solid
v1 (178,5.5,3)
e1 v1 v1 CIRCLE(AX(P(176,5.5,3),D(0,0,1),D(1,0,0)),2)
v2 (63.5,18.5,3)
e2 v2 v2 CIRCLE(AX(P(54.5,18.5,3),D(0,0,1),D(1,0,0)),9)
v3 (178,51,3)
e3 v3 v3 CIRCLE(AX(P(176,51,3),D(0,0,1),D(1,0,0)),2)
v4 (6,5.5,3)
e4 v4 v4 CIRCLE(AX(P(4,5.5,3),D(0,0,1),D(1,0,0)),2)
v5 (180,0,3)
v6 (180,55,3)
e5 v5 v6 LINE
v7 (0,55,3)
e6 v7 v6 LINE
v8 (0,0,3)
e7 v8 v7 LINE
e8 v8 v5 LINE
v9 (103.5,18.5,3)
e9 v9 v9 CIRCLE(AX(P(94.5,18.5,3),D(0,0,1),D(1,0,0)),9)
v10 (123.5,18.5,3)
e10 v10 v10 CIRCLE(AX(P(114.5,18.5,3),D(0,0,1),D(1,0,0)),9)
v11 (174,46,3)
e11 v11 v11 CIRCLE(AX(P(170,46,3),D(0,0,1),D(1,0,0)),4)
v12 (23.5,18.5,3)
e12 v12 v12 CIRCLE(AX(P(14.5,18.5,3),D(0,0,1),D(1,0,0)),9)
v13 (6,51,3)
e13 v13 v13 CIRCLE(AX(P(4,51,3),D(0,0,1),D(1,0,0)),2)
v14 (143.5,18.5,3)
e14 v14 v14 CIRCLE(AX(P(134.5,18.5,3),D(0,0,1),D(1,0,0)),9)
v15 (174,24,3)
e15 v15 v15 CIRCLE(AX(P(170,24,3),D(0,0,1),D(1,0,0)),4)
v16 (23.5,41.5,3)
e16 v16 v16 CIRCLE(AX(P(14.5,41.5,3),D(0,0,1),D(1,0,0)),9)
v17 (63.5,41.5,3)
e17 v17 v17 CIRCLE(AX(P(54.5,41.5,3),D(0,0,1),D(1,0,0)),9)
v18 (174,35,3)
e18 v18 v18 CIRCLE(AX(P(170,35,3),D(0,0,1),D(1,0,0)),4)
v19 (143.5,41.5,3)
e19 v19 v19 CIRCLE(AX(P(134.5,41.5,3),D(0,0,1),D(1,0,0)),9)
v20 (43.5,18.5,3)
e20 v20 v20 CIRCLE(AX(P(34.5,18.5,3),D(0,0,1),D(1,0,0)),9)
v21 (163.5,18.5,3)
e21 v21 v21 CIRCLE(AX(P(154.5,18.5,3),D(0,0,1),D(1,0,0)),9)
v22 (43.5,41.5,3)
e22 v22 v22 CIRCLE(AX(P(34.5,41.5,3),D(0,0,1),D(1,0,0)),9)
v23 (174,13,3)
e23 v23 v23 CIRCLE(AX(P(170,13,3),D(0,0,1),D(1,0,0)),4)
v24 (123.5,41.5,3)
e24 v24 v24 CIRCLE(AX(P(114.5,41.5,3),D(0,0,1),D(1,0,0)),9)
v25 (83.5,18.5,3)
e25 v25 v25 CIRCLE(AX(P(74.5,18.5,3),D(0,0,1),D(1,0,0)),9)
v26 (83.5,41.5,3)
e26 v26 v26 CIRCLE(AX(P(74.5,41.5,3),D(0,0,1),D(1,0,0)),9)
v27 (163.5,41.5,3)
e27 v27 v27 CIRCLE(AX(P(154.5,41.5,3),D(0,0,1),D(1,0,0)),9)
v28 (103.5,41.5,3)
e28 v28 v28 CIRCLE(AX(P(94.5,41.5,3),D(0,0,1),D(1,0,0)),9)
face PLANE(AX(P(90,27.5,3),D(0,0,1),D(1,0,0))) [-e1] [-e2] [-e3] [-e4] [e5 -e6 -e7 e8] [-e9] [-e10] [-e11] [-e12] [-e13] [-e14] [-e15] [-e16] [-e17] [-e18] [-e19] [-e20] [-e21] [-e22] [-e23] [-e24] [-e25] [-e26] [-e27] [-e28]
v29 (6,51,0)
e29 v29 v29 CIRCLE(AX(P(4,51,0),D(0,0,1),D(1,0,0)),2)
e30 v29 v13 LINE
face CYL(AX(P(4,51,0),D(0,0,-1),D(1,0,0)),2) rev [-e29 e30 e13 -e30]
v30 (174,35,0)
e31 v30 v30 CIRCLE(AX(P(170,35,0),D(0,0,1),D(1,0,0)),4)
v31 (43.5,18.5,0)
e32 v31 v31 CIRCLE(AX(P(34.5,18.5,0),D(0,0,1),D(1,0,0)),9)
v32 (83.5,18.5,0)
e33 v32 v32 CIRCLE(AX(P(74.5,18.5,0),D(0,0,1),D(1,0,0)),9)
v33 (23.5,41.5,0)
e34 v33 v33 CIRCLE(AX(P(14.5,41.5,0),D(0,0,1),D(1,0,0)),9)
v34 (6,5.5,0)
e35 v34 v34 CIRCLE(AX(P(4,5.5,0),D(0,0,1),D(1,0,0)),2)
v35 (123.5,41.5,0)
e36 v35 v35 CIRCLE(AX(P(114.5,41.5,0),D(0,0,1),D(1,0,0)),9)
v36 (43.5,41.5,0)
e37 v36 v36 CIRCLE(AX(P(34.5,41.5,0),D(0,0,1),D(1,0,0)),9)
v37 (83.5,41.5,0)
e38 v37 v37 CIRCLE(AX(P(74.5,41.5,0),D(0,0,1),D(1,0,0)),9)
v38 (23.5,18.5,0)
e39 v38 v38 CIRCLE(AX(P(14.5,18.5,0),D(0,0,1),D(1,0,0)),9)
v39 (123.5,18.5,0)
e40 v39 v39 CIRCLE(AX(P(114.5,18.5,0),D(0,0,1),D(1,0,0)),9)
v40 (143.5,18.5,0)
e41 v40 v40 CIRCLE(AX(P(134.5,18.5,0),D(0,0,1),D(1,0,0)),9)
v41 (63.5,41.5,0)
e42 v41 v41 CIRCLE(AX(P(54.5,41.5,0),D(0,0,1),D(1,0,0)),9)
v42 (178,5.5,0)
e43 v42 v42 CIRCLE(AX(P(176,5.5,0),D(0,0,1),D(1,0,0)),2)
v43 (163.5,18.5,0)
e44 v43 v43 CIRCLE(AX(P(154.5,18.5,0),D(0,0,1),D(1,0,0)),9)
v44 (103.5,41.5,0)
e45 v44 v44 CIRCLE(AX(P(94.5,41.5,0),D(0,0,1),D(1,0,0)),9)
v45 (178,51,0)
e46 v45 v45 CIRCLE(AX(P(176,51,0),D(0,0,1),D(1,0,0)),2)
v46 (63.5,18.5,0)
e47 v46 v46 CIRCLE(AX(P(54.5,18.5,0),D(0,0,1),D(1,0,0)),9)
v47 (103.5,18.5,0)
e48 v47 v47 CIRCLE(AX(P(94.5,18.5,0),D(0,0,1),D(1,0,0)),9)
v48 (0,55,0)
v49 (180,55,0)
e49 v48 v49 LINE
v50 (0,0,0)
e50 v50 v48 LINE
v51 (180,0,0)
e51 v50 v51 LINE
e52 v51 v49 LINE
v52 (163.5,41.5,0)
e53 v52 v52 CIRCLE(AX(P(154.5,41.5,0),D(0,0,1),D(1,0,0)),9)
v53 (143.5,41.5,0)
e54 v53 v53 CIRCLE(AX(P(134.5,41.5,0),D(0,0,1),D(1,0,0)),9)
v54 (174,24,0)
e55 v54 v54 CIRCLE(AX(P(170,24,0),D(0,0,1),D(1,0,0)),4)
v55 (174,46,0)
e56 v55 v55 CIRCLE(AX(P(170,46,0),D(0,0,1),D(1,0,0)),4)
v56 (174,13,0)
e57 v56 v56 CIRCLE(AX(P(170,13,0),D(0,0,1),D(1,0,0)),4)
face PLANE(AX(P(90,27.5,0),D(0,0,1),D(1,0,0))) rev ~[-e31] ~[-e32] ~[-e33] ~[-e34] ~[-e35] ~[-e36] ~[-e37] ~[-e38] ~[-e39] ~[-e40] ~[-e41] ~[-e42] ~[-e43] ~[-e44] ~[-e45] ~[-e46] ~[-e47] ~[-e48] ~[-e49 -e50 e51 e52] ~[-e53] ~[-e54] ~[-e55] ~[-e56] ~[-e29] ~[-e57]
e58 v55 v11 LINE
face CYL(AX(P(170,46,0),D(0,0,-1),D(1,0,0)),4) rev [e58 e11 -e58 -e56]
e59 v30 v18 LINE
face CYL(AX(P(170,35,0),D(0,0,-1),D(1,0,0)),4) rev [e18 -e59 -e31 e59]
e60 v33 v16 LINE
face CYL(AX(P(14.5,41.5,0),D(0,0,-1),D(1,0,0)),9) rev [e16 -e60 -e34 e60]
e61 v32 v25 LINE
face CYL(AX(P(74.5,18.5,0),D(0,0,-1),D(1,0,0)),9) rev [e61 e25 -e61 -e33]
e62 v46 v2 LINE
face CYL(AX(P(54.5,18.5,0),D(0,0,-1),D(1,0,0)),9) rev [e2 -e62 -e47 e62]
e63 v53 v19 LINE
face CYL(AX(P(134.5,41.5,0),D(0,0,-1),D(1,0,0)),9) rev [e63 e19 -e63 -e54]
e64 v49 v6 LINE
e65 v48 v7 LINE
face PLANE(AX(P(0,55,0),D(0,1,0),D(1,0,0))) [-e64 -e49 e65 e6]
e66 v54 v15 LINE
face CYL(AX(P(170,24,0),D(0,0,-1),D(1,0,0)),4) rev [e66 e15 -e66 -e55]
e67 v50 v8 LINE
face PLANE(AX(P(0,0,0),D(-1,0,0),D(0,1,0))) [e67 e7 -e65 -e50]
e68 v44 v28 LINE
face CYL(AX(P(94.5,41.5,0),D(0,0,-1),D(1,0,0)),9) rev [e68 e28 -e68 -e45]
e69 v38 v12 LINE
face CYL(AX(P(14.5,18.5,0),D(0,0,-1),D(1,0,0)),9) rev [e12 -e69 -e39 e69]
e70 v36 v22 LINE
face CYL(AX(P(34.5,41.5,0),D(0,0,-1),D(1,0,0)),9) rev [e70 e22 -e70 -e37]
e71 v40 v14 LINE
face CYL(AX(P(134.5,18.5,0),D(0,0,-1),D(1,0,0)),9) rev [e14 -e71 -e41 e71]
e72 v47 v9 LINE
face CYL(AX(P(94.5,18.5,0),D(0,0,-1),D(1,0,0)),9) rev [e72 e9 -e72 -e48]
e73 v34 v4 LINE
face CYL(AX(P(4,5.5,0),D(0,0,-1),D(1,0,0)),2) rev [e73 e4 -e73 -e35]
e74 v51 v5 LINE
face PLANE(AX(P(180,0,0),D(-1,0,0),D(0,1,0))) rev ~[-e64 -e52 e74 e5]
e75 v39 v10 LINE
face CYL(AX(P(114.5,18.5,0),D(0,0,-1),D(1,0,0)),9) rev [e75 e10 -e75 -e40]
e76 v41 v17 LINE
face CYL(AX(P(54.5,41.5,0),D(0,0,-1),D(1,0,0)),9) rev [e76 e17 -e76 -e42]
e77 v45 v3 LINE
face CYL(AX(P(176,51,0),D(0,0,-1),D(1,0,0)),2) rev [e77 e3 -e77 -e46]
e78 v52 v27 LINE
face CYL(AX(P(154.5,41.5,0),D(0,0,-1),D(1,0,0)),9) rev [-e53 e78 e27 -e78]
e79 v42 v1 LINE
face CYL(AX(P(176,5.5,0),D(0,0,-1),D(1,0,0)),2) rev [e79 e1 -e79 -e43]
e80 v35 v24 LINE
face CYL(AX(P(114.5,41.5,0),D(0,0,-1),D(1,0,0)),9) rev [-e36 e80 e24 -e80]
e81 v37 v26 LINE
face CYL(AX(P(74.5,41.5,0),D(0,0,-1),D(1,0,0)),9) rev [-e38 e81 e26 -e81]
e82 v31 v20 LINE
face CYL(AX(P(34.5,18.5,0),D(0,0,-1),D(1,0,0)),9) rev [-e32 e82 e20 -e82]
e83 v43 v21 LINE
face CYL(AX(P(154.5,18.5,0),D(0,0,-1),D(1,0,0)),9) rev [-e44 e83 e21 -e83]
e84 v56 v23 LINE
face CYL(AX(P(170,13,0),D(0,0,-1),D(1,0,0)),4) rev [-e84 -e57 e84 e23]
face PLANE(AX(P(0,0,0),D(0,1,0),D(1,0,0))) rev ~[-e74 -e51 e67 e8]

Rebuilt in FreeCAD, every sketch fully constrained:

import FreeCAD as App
import Part
import Sketcher
Q = App.Units.Quantity


def add_polygon(sketch, points):
    """Adds a closed chain of lines whose ends are joined by coincident constraints."""
    first, n = sketch.GeometryCount, len(points)
    for a, b in zip(points, points[1:] + points[:1]):
        sketch.addGeometry(Part.LineSegment(App.Vector(*a, 0), App.Vector(*b, 0)), False)
    for i in range(n):
        sketch.addConstraint(Sketcher.Constraint("Coincident", first + i, 2, first + (i + 1) % n, 1))

doc = App.newDocument("Part")
body = doc.addObject("PartDesign::Body", "Body")

sketch1 = doc.addObject("Sketcher::SketchObject", "Sketch")
body.addObject(sketch1)
sketch1.AttachmentSupport = (doc.XY_Plane, [""])
sketch1.MapMode = "FlatFace"
sketch1.addGeometry(Part.Circle(App.Vector(176, 51, 0), App.Vector(0, 0, 1), 2), False)
sketch1.addConstraint(Sketcher.Constraint("Diameter", 0, Q("4 mm")))
sketch1.addConstraint(Sketcher.Constraint("DistanceX", -1, 1, 0, 3, Q("176 mm")))
sketch1.addConstraint(Sketcher.Constraint("DistanceY", -1, 1, 0, 3, Q("51 mm")))
pad1 = doc.addObject("PartDesign::Pad", "Pad")
body.addObject(pad1)
pad1.Profile = sketch1
pad1.Length = 3
body2 = doc.addObject("PartDesign::Body", "Body001")

sketch2 = doc.addObject("Sketcher::SketchObject", "Sketch001")
body2.addObject(sketch2)
sketch2.AttachmentSupport = (doc.getObject("XY_Plane001"), [""])
sketch2.MapMode = "FlatFace"
sketch2.addGeometry(Part.Circle(App.Vector(4, 51, 0), App.Vector(0, 0, 1), 2), False)
sketch2.addConstraint(Sketcher.Constraint("Diameter", 0, Q("4 mm")))
sketch2.addConstraint(Sketcher.Constraint("DistanceX", -1, 1, 0, 3, Q("4 mm")))
sketch2.addConstraint(Sketcher.Constraint("DistanceY", -1, 1, 0, 3, Q("51 mm")))
pad2 = doc.addObject("PartDesign::Pad", "Pad001")
body2.addObject(pad2)
pad2.Profile = sketch2
pad2.Length = 3
body3 = doc.addObject("PartDesign::Body", "Body002")

sketch3 = doc.addObject("Sketcher::SketchObject", "Sketch002")
body3.addObject(sketch3)
sketch3.AttachmentSupport = (doc.getObject("XY_Plane002"), [""])
sketch3.MapMode = "FlatFace"
sketch3.addGeometry(Part.Circle(App.Vector(176, 5.5, 0), App.Vector(0, 0, 1), 2), False)
sketch3.addConstraint(Sketcher.Constraint("Diameter", 0, Q("4 mm")))
sketch3.addConstraint(Sketcher.Constraint("DistanceX", -1, 1, 0, 3, Q("176 mm")))
sketch3.addConstraint(Sketcher.Constraint("DistanceY", -1, 1, 0, 3, Q("5.5 mm")))
pad3 = doc.addObject("PartDesign::Pad", "Pad002")
body3.addObject(pad3)
pad3.Profile = sketch3
pad3.Length = 3
body4 = doc.addObject("PartDesign::Body", "Body003")

sketch4 = doc.addObject("Sketcher::SketchObject", "Sketch003")
body4.addObject(sketch4)
sketch4.AttachmentSupport = (doc.getObject("XY_Plane003"), [""])
sketch4.MapMode = "FlatFace"
sketch4.addGeometry(Part.Circle(App.Vector(4, 5.5, 0), App.Vector(0, 0, 1), 2), False)
sketch4.addConstraint(Sketcher.Constraint("Diameter", 0, Q("4 mm")))
sketch4.addConstraint(Sketcher.Constraint("DistanceX", -1, 1, 0, 3, Q("4 mm")))
sketch4.addConstraint(Sketcher.Constraint("DistanceY", -1, 1, 0, 3, Q("5.5 mm")))
pad4 = doc.addObject("PartDesign::Pad", "Pad003")
body4.addObject(pad4)
pad4.Profile = sketch4
pad4.Length = 3
body5 = doc.addObject("PartDesign::Body", "Body004")

sketch5 = doc.addObject("Sketcher::SketchObject", "Sketch004")
body5.addObject(sketch5)
sketch5.AttachmentSupport = (doc.getObject("XY_Plane004"), [""])
sketch5.MapMode = "FlatFace"
sketch5.addGeometry(Part.Circle(App.Vector(170, 13, 0), App.Vector(0, 0, 1), 4), False)
sketch5.addConstraint(Sketcher.Constraint("Diameter", 0, Q("8 mm")))
sketch5.addConstraint(Sketcher.Constraint("DistanceX", -1, 1, 0, 3, Q("170 mm")))
sketch5.addConstraint(Sketcher.Constraint("DistanceY", -1, 1, 0, 3, Q("13 mm")))
pad5 = doc.addObject("PartDesign::Pad", "Pad004")
body5.addObject(pad5)
pad5.Profile = sketch5
pad5.Length = 3
body6 = doc.addObject("PartDesign::Body", "Body005")

sketch6 = doc.addObject("Sketcher::SketchObject", "Sketch005")
body6.addObject(sketch6)
sketch6.AttachmentSupport = (doc.getObject("XY_Plane005"), [""])
sketch6.MapMode = "FlatFace"
sketch6.addGeometry(Part.Circle(App.Vector(170, 24, 0), App.Vector(0, 0, 1), 4), False)
sketch6.addConstraint(Sketcher.Constraint("Diameter", 0, Q("8 mm")))
sketch6.addConstraint(Sketcher.Constraint("DistanceX", -1, 1, 0, 3, Q("170 mm")))
sketch6.addConstraint(Sketcher.Constraint("DistanceY", -1, 1, 0, 3, Q("24 mm")))
pad6 = doc.addObject("PartDesign::Pad", "Pad005")
body6.addObject(pad6)
pad6.Profile = sketch6
pad6.Length = 3
body7 = doc.addObject("PartDesign::Body", "Body006")

sketch7 = doc.addObject("Sketcher::SketchObject", "Sketch006")
body7.addObject(sketch7)
sketch7.AttachmentSupport = (doc.getObject("XY_Plane006"), [""])
sketch7.MapMode = "FlatFace"
sketch7.addGeometry(Part.Circle(App.Vector(170, 35, 0), App.Vector(0, 0, 1), 4), False)
sketch7.addConstraint(Sketcher.Constraint("Diameter", 0, Q("8 mm")))
sketch7.addConstraint(Sketcher.Constraint("DistanceX", -1, 1, 0, 3, Q("170 mm")))
sketch7.addConstraint(Sketcher.Constraint("DistanceY", -1, 1, 0, 3, Q("35 mm")))
pad7 = doc.addObject("PartDesign::Pad", "Pad006")
body7.addObject(pad7)
pad7.Profile = sketch7
pad7.Length = 3
body8 = doc.addObject("PartDesign::Body", "Body007")

sketch8 = doc.addObject("Sketcher::SketchObject", "Sketch007")
body8.addObject(sketch8)
sketch8.AttachmentSupport = (doc.getObject("XY_Plane007"), [""])
sketch8.MapMode = "FlatFace"
sketch8.addGeometry(Part.Circle(App.Vector(170, 46, 0), App.Vector(0, 0, 1), 4), False)
sketch8.addConstraint(Sketcher.Constraint("Diameter", 0, Q("8 mm")))
sketch8.addConstraint(Sketcher.Constraint("DistanceX", -1, 1, 0, 3, Q("170 mm")))
sketch8.addConstraint(Sketcher.Constraint("DistanceY", -1, 1, 0, 3, Q("46 mm")))
pad8 = doc.addObject("PartDesign::Pad", "Pad007")
body8.addObject(pad8)
pad8.Profile = sketch8
pad8.Length = 3
body9 = doc.addObject("PartDesign::Body", "Body008")

sketch9 = doc.addObject("Sketcher::SketchObject", "Sketch008")
body9.addObject(sketch9)
sketch9.AttachmentSupport = (doc.getObject("XY_Plane008"), [""])
sketch9.MapMode = "FlatFace"
sketch9.addGeometry(Part.Circle(App.Vector(154.5, 18.5, 0), App.Vector(0, 0, 1), 9), False)
sketch9.addConstraint(Sketcher.Constraint("Diameter", 0, Q("18 mm")))
sketch9.addConstraint(Sketcher.Constraint("DistanceX", -1, 1, 0, 3, Q("154.5 mm")))
sketch9.addConstraint(Sketcher.Constraint("DistanceY", -1, 1, 0, 3, Q("18.5 mm")))
pad9 = doc.addObject("PartDesign::Pad", "Pad008")
body9.addObject(pad9)
pad9.Profile = sketch9
pad9.Length = 3
body10 = doc.addObject("PartDesign::Body", "Body009")

sketch10 = doc.addObject("Sketcher::SketchObject", "Sketch009")
body10.addObject(sketch10)
sketch10.AttachmentSupport = (doc.getObject("XY_Plane009"), [""])
sketch10.MapMode = "FlatFace"
sketch10.addGeometry(Part.Circle(App.Vector(134.5, 18.5, 0), App.Vector(0, 0, 1), 9), False)
sketch10.addConstraint(Sketcher.Constraint("Diameter", 0, Q("18 mm")))
sketch10.addConstraint(Sketcher.Constraint("DistanceX", -1, 1, 0, 3, Q("134.5 mm")))
sketch10.addConstraint(Sketcher.Constraint("DistanceY", -1, 1, 0, 3, Q("18.5 mm")))
pad10 = doc.addObject("PartDesign::Pad", "Pad009")
body10.addObject(pad10)
pad10.Profile = sketch10
pad10.Length = 3
body11 = doc.addObject("PartDesign::Body", "Body010")

sketch11 = doc.addObject("Sketcher::SketchObject", "Sketch010")
body11.addObject(sketch11)
sketch11.AttachmentSupport = (doc.getObject("XY_Plane010"), [""])
sketch11.MapMode = "FlatFace"
sketch11.addGeometry(Part.Circle(App.Vector(114.5, 18.5, 0), App.Vector(0, 0, 1), 9), False)
sketch11.addConstraint(Sketcher.Constraint("Diameter", 0, Q("18 mm")))
sketch11.addConstraint(Sketcher.Constraint("DistanceX", -1, 1, 0, 3, Q("114.5 mm")))
sketch11.addConstraint(Sketcher.Constraint("DistanceY", -1, 1, 0, 3, Q("18.5 mm")))
pad11 = doc.addObject("PartDesign::Pad", "Pad010")
body11.addObject(pad11)
pad11.Profile = sketch11
pad11.Length = 3
body12 = doc.addObject("PartDesign::Body", "Body011")

sketch12 = doc.addObject("Sketcher::SketchObject", "Sketch011")
body12.addObject(sketch12)
sketch12.AttachmentSupport = (doc.getObject("XY_Plane011"), [""])
sketch12.MapMode = "FlatFace"
sketch12.addGeometry(Part.Circle(App.Vector(94.5, 18.5, 0), App.Vector(0, 0, 1), 9), False)
sketch12.addConstraint(Sketcher.Constraint("Diameter", 0, Q("18 mm")))
sketch12.addConstraint(Sketcher.Constraint("DistanceX", -1, 1, 0, 3, Q("94.5 mm")))
sketch12.addConstraint(Sketcher.Constraint("DistanceY", -1, 1, 0, 3, Q("18.5 mm")))
pad12 = doc.addObject("PartDesign::Pad", "Pad011")
body12.addObject(pad12)
pad12.Profile = sketch12
pad12.Length = 3
body13 = doc.addObject("PartDesign::Body", "Body012")

sketch13 = doc.addObject("Sketcher::SketchObject", "Sketch012")
body13.addObject(sketch13)
sketch13.AttachmentSupport = (doc.getObject("XY_Plane012"), [""])
sketch13.MapMode = "FlatFace"
sketch13.addGeometry(Part.Circle(App.Vector(74.5, 18.5, 0), App.Vector(0, 0, 1), 9), False)
sketch13.addConstraint(Sketcher.Constraint("Diameter", 0, Q("18 mm")))
sketch13.addConstraint(Sketcher.Constraint("DistanceX", -1, 1, 0, 3, Q("74.5 mm")))
sketch13.addConstraint(Sketcher.Constraint("DistanceY", -1, 1, 0, 3, Q("18.5 mm")))
pad13 = doc.addObject("PartDesign::Pad", "Pad012")
body13.addObject(pad13)
pad13.Profile = sketch13
pad13.Length = 3
body14 = doc.addObject("PartDesign::Body", "Body013")

sketch14 = doc.addObject("Sketcher::SketchObject", "Sketch013")
body14.addObject(sketch14)
sketch14.AttachmentSupport = (doc.getObject("XY_Plane013"), [""])
sketch14.MapMode = "FlatFace"
sketch14.addGeometry(Part.Circle(App.Vector(54.5, 18.5, 0), App.Vector(0, 0, 1), 9), False)
sketch14.addConstraint(Sketcher.Constraint("Diameter", 0, Q("18 mm")))
sketch14.addConstraint(Sketcher.Constraint("DistanceX", -1, 1, 0, 3, Q("54.5 mm")))
sketch14.addConstraint(Sketcher.Constraint("DistanceY", -1, 1, 0, 3, Q("18.5 mm")))
pad14 = doc.addObject("PartDesign::Pad", "Pad013")
body14.addObject(pad14)
pad14.Profile = sketch14
pad14.Length = 3
body15 = doc.addObject("PartDesign::Body", "Body014")

sketch15 = doc.addObject("Sketcher::SketchObject", "Sketch014")
body15.addObject(sketch15)
sketch15.AttachmentSupport = (doc.getObject("XY_Plane014"), [""])
sketch15.MapMode = "FlatFace"
sketch15.addGeometry(Part.Circle(App.Vector(34.5, 18.5, 0), App.Vector(0, 0, 1), 9), False)
sketch15.addConstraint(Sketcher.Constraint("Diameter", 0, Q("18 mm")))
sketch15.addConstraint(Sketcher.Constraint("DistanceX", -1, 1, 0, 3, Q("34.5 mm")))
sketch15.addConstraint(Sketcher.Constraint("DistanceY", -1, 1, 0, 3, Q("18.5 mm")))
pad15 = doc.addObject("PartDesign::Pad", "Pad014")
body15.addObject(pad15)
pad15.Profile = sketch15
pad15.Length = 3
body16 = doc.addObject("PartDesign::Body", "Body015")

sketch16 = doc.addObject("Sketcher::SketchObject", "Sketch015")
body16.addObject(sketch16)
sketch16.AttachmentSupport = (doc.getObject("XY_Plane015"), [""])
sketch16.MapMode = "FlatFace"
sketch16.addGeometry(Part.Circle(App.Vector(14.5, 18.5, 0), App.Vector(0, 0, 1), 9), False)
sketch16.addConstraint(Sketcher.Constraint("Diameter", 0, Q("18 mm")))
sketch16.addConstraint(Sketcher.Constraint("DistanceX", -1, 1, 0, 3, Q("14.5 mm")))
sketch16.addConstraint(Sketcher.Constraint("DistanceY", -1, 1, 0, 3, Q("18.5 mm")))
pad16 = doc.addObject("PartDesign::Pad", "Pad015")
body16.addObject(pad16)
pad16.Profile = sketch16
pad16.Length = 3
body17 = doc.addObject("PartDesign::Body", "Body016")

sketch17 = doc.addObject("Sketcher::SketchObject", "Sketch016")
body17.addObject(sketch17)
sketch17.AttachmentSupport = (doc.getObject("XY_Plane016"), [""])
sketch17.MapMode = "FlatFace"
sketch17.addGeometry(Part.Circle(App.Vector(154.5, 41.5, 0), App.Vector(0, 0, 1), 9), False)
sketch17.addConstraint(Sketcher.Constraint("Diameter", 0, Q("18 mm")))
sketch17.addConstraint(Sketcher.Constraint("DistanceX", -1, 1, 0, 3, Q("154.5 mm")))
sketch17.addConstraint(Sketcher.Constraint("DistanceY", -1, 1, 0, 3, Q("41.5 mm")))
pad17 = doc.addObject("PartDesign::Pad", "Pad016")
body17.addObject(pad17)
pad17.Profile = sketch17
pad17.Length = 3
body18 = doc.addObject("PartDesign::Body", "Body017")

sketch18 = doc.addObject("Sketcher::SketchObject", "Sketch017")
body18.addObject(sketch18)
sketch18.AttachmentSupport = (doc.getObject("XY_Plane017"), [""])
sketch18.MapMode = "FlatFace"
sketch18.addGeometry(Part.Circle(App.Vector(134.5, 41.5, 0), App.Vector(0, 0, 1), 9), False)
sketch18.addConstraint(Sketcher.Constraint("Diameter", 0, Q("18 mm")))
sketch18.addConstraint(Sketcher.Constraint("DistanceX", -1, 1, 0, 3, Q("134.5 mm")))
sketch18.addConstraint(Sketcher.Constraint("DistanceY", -1, 1, 0, 3, Q("41.5 mm")))
pad18 = doc.addObject("PartDesign::Pad", "Pad017")
body18.addObject(pad18)
pad18.Profile = sketch18
pad18.Length = 3
body19 = doc.addObject("PartDesign::Body", "Body018")

sketch19 = doc.addObject("Sketcher::SketchObject", "Sketch018")
body19.addObject(sketch19)
sketch19.AttachmentSupport = (doc.getObject("XY_Plane018"), [""])
sketch19.MapMode = "FlatFace"
sketch19.addGeometry(Part.Circle(App.Vector(114.5, 41.5, 0), App.Vector(0, 0, 1), 9), False)
sketch19.addConstraint(Sketcher.Constraint("Diameter", 0, Q("18 mm")))
sketch19.addConstraint(Sketcher.Constraint("DistanceX", -1, 1, 0, 3, Q("114.5 mm")))
sketch19.addConstraint(Sketcher.Constraint("DistanceY", -1, 1, 0, 3, Q("41.5 mm")))
pad19 = doc.addObject("PartDesign::Pad", "Pad018")
body19.addObject(pad19)
pad19.Profile = sketch19
pad19.Length = 3
body20 = doc.addObject("PartDesign::Body", "Body019")

sketch20 = doc.addObject("Sketcher::SketchObject", "Sketch019")
body20.addObject(sketch20)
sketch20.AttachmentSupport = (doc.getObject("XY_Plane019"), [""])
sketch20.MapMode = "FlatFace"
sketch20.addGeometry(Part.Circle(App.Vector(94.5, 41.5, 0), App.Vector(0, 0, 1), 9), False)
sketch20.addConstraint(Sketcher.Constraint("Diameter", 0, Q("18 mm")))
sketch20.addConstraint(Sketcher.Constraint("DistanceX", -1, 1, 0, 3, Q("94.5 mm")))
sketch20.addConstraint(Sketcher.Constraint("DistanceY", -1, 1, 0, 3, Q("41.5 mm")))
pad20 = doc.addObject("PartDesign::Pad", "Pad019")
body20.addObject(pad20)
pad20.Profile = sketch20
pad20.Length = 3
body21 = doc.addObject("PartDesign::Body", "Body020")

sketch21 = doc.addObject("Sketcher::SketchObject", "Sketch020")
body21.addObject(sketch21)
sketch21.AttachmentSupport = (doc.getObject("XY_Plane020"), [""])
sketch21.MapMode = "FlatFace"
sketch21.addGeometry(Part.Circle(App.Vector(74.5, 41.5, 0), App.Vector(0, 0, 1), 9), False)
sketch21.addConstraint(Sketcher.Constraint("Diameter", 0, Q("18 mm")))
sketch21.addConstraint(Sketcher.Constraint("DistanceX", -1, 1, 0, 3, Q("74.5 mm")))
sketch21.addConstraint(Sketcher.Constraint("DistanceY", -1, 1, 0, 3, Q("41.5 mm")))
pad21 = doc.addObject("PartDesign::Pad", "Pad020")
body21.addObject(pad21)
pad21.Profile = sketch21
pad21.Length = 3
body22 = doc.addObject("PartDesign::Body", "Body021")

sketch22 = doc.addObject("Sketcher::SketchObject", "Sketch021")
body22.addObject(sketch22)
sketch22.AttachmentSupport = (doc.getObject("XY_Plane021"), [""])
sketch22.MapMode = "FlatFace"
sketch22.addGeometry(Part.Circle(App.Vector(54.5, 41.5, 0), App.Vector(0, 0, 1), 9), False)
sketch22.addConstraint(Sketcher.Constraint("Diameter", 0, Q("18 mm")))
sketch22.addConstraint(Sketcher.Constraint("DistanceX", -1, 1, 0, 3, Q("54.5 mm")))
sketch22.addConstraint(Sketcher.Constraint("DistanceY", -1, 1, 0, 3, Q("41.5 mm")))
pad22 = doc.addObject("PartDesign::Pad", "Pad021")
body22.addObject(pad22)
pad22.Profile = sketch22
pad22.Length = 3
body23 = doc.addObject("PartDesign::Body", "Body022")

sketch23 = doc.addObject("Sketcher::SketchObject", "Sketch022")
body23.addObject(sketch23)
sketch23.AttachmentSupport = (doc.getObject("XY_Plane022"), [""])
sketch23.MapMode = "FlatFace"
sketch23.addGeometry(Part.Circle(App.Vector(34.5, 41.5, 0), App.Vector(0, 0, 1), 9), False)
sketch23.addConstraint(Sketcher.Constraint("Diameter", 0, Q("18 mm")))
sketch23.addConstraint(Sketcher.Constraint("DistanceX", -1, 1, 0, 3, Q("34.5 mm")))
sketch23.addConstraint(Sketcher.Constraint("DistanceY", -1, 1, 0, 3, Q("41.5 mm")))
pad23 = doc.addObject("PartDesign::Pad", "Pad022")
body23.addObject(pad23)
pad23.Profile = sketch23
pad23.Length = 3
body24 = doc.addObject("PartDesign::Body", "Body023")

sketch24 = doc.addObject("Sketcher::SketchObject", "Sketch023")
body24.addObject(sketch24)
sketch24.AttachmentSupport = (doc.getObject("XY_Plane023"), [""])
sketch24.MapMode = "FlatFace"
sketch24.addGeometry(Part.Circle(App.Vector(14.5, 41.5, 0), App.Vector(0, 0, 1), 9), False)
sketch24.addConstraint(Sketcher.Constraint("Diameter", 0, Q("18 mm")))
sketch24.addConstraint(Sketcher.Constraint("DistanceX", -1, 1, 0, 3, Q("14.5 mm")))
sketch24.addConstraint(Sketcher.Constraint("DistanceY", -1, 1, 0, 3, Q("41.5 mm")))
pad24 = doc.addObject("PartDesign::Pad", "Pad023")
body24.addObject(pad24)
pad24.Profile = sketch24
pad24.Length = 3
body25 = doc.addObject("PartDesign::Body", "Body024")

sketch25 = doc.addObject("Sketcher::SketchObject", "Sketch024")
body25.addObject(sketch25)
sketch25.AttachmentSupport = (doc.getObject("XY_Plane024"), [""])
sketch25.MapMode = "FlatFace"
add_polygon(sketch25, [(0, 55), (0, 0), (180, 0), (180, 55)])
sketch25.addConstraint(Sketcher.Constraint("Vertical", 0))
sketch25.addConstraint(Sketcher.Constraint("Horizontal", 1))
sketch25.addConstraint(Sketcher.Constraint("Vertical", 2))
sketch25.addConstraint(Sketcher.Constraint("Horizontal", 3))
sketch25.addConstraint(Sketcher.Constraint("Coincident", 0, 2, -1, 1))
sketch25.addConstraint(Sketcher.Constraint("DistanceX", 1, 1, 1, 2, Q("180 mm")))
sketch25.addConstraint(Sketcher.Constraint("DistanceY", 0, 2, 0, 1, Q("55 mm")))
pad25 = doc.addObject("PartDesign::Pad", "Pad024")
body25.addObject(pad25)
pad25.Profile = sketch25
pad25.Length = 3
doc.recompute()

boolean = doc.addObject("PartDesign::Boolean", "Boolean")
body25.addObject(boolean)
boolean.Type = "Cut"
boolean.addObjects([body24])
doc.recompute()

boolean2 = doc.addObject("PartDesign::Boolean", "Boolean001")
body25.addObject(boolean2)
boolean2.Type = "Cut"
boolean2.addObjects([body23])
doc.recompute()

boolean3 = doc.addObject("PartDesign::Boolean", "Boolean002")
body25.addObject(boolean3)
boolean3.Type = "Cut"
boolean3.addObjects([body22])
doc.recompute()

boolean4 = doc.addObject("PartDesign::Boolean", "Boolean003")
body25.addObject(boolean4)
boolean4.Type = "Cut"
boolean4.addObjects([body21])
doc.recompute()

boolean5 = doc.addObject("PartDesign::Boolean", "Boolean004")
body25.addObject(boolean5)
boolean5.Type = "Cut"
boolean5.addObjects([body20])
doc.recompute()

boolean6 = doc.addObject("PartDesign::Boolean", "Boolean005")
body25.addObject(boolean6)
boolean6.Type = "Cut"
boolean6.addObjects([body19])
doc.recompute()

boolean7 = doc.addObject("PartDesign::Boolean", "Boolean006")
body25.addObject(boolean7)
boolean7.Type = "Cut"
boolean7.addObjects([body18])
doc.recompute()

boolean8 = doc.addObject("PartDesign::Boolean", "Boolean007")
body25.addObject(boolean8)
boolean8.Type = "Cut"
boolean8.addObjects([body17])
doc.recompute()

boolean9 = doc.addObject("PartDesign::Boolean", "Boolean008")
body25.addObject(boolean9)
boolean9.Type = "Cut"
boolean9.addObjects([body16])
doc.recompute()

boolean10 = doc.addObject("PartDesign::Boolean", "Boolean009")
body25.addObject(boolean10)
boolean10.Type = "Cut"
boolean10.addObjects([body15])
doc.recompute()

boolean11 = doc.addObject("PartDesign::Boolean", "Boolean010")
body25.addObject(boolean11)
boolean11.Type = "Cut"
boolean11.addObjects([body14])
doc.recompute()

boolean12 = doc.addObject("PartDesign::Boolean", "Boolean011")
body25.addObject(boolean12)
boolean12.Type = "Cut"
boolean12.addObjects([body13])
doc.recompute()

boolean13 = doc.addObject("PartDesign::Boolean", "Boolean012")
body25.addObject(boolean13)
boolean13.Type = "Cut"
boolean13.addObjects([body12])
doc.recompute()

boolean14 = doc.addObject("PartDesign::Boolean", "Boolean013")
body25.addObject(boolean14)
boolean14.Type = "Cut"
boolean14.addObjects([body11])
doc.recompute()

boolean15 = doc.addObject("PartDesign::Boolean", "Boolean014")
body25.addObject(boolean15)
boolean15.Type = "Cut"
boolean15.addObjects([body10])
doc.recompute()

boolean16 = doc.addObject("PartDesign::Boolean", "Boolean015")
body25.addObject(boolean16)
boolean16.Type = "Cut"
boolean16.addObjects([body9])
doc.recompute()

boolean17 = doc.addObject("PartDesign::Boolean", "Boolean016")
body25.addObject(boolean17)
boolean17.Type = "Cut"
boolean17.addObjects([body8])
doc.recompute()

boolean18 = doc.addObject("PartDesign::Boolean", "Boolean017")
body25.addObject(boolean18)
boolean18.Type = "Cut"
boolean18.addObjects([body7])
doc.recompute()

boolean19 = doc.addObject("PartDesign::Boolean", "Boolean018")
body25.addObject(boolean19)
boolean19.Type = "Cut"
boolean19.addObjects([body6])
doc.recompute()

boolean20 = doc.addObject("PartDesign::Boolean", "Boolean019")
body25.addObject(boolean20)
boolean20.Type = "Cut"
boolean20.addObjects([body5])
doc.recompute()

boolean21 = doc.addObject("PartDesign::Boolean", "Boolean020")
body25.addObject(boolean21)
boolean21.Type = "Cut"
boolean21.addObjects([body4])
doc.recompute()

boolean22 = doc.addObject("PartDesign::Boolean", "Boolean021")
body25.addObject(boolean22)
boolean22.Type = "Cut"
boolean22.addObjects([body3])
doc.recompute()

boolean23 = doc.addObject("PartDesign::Boolean", "Boolean022")
body25.addObject(boolean23)
boolean23.Type = "Cut"
boolean23.addObjects([body2])
doc.recompute()

boolean24 = doc.addObject("PartDesign::Boolean", "Boolean023")
body25.addObject(boolean24)
boolean24.Type = "Cut"
boolean24.addObjects([body])

doc.recompute()
